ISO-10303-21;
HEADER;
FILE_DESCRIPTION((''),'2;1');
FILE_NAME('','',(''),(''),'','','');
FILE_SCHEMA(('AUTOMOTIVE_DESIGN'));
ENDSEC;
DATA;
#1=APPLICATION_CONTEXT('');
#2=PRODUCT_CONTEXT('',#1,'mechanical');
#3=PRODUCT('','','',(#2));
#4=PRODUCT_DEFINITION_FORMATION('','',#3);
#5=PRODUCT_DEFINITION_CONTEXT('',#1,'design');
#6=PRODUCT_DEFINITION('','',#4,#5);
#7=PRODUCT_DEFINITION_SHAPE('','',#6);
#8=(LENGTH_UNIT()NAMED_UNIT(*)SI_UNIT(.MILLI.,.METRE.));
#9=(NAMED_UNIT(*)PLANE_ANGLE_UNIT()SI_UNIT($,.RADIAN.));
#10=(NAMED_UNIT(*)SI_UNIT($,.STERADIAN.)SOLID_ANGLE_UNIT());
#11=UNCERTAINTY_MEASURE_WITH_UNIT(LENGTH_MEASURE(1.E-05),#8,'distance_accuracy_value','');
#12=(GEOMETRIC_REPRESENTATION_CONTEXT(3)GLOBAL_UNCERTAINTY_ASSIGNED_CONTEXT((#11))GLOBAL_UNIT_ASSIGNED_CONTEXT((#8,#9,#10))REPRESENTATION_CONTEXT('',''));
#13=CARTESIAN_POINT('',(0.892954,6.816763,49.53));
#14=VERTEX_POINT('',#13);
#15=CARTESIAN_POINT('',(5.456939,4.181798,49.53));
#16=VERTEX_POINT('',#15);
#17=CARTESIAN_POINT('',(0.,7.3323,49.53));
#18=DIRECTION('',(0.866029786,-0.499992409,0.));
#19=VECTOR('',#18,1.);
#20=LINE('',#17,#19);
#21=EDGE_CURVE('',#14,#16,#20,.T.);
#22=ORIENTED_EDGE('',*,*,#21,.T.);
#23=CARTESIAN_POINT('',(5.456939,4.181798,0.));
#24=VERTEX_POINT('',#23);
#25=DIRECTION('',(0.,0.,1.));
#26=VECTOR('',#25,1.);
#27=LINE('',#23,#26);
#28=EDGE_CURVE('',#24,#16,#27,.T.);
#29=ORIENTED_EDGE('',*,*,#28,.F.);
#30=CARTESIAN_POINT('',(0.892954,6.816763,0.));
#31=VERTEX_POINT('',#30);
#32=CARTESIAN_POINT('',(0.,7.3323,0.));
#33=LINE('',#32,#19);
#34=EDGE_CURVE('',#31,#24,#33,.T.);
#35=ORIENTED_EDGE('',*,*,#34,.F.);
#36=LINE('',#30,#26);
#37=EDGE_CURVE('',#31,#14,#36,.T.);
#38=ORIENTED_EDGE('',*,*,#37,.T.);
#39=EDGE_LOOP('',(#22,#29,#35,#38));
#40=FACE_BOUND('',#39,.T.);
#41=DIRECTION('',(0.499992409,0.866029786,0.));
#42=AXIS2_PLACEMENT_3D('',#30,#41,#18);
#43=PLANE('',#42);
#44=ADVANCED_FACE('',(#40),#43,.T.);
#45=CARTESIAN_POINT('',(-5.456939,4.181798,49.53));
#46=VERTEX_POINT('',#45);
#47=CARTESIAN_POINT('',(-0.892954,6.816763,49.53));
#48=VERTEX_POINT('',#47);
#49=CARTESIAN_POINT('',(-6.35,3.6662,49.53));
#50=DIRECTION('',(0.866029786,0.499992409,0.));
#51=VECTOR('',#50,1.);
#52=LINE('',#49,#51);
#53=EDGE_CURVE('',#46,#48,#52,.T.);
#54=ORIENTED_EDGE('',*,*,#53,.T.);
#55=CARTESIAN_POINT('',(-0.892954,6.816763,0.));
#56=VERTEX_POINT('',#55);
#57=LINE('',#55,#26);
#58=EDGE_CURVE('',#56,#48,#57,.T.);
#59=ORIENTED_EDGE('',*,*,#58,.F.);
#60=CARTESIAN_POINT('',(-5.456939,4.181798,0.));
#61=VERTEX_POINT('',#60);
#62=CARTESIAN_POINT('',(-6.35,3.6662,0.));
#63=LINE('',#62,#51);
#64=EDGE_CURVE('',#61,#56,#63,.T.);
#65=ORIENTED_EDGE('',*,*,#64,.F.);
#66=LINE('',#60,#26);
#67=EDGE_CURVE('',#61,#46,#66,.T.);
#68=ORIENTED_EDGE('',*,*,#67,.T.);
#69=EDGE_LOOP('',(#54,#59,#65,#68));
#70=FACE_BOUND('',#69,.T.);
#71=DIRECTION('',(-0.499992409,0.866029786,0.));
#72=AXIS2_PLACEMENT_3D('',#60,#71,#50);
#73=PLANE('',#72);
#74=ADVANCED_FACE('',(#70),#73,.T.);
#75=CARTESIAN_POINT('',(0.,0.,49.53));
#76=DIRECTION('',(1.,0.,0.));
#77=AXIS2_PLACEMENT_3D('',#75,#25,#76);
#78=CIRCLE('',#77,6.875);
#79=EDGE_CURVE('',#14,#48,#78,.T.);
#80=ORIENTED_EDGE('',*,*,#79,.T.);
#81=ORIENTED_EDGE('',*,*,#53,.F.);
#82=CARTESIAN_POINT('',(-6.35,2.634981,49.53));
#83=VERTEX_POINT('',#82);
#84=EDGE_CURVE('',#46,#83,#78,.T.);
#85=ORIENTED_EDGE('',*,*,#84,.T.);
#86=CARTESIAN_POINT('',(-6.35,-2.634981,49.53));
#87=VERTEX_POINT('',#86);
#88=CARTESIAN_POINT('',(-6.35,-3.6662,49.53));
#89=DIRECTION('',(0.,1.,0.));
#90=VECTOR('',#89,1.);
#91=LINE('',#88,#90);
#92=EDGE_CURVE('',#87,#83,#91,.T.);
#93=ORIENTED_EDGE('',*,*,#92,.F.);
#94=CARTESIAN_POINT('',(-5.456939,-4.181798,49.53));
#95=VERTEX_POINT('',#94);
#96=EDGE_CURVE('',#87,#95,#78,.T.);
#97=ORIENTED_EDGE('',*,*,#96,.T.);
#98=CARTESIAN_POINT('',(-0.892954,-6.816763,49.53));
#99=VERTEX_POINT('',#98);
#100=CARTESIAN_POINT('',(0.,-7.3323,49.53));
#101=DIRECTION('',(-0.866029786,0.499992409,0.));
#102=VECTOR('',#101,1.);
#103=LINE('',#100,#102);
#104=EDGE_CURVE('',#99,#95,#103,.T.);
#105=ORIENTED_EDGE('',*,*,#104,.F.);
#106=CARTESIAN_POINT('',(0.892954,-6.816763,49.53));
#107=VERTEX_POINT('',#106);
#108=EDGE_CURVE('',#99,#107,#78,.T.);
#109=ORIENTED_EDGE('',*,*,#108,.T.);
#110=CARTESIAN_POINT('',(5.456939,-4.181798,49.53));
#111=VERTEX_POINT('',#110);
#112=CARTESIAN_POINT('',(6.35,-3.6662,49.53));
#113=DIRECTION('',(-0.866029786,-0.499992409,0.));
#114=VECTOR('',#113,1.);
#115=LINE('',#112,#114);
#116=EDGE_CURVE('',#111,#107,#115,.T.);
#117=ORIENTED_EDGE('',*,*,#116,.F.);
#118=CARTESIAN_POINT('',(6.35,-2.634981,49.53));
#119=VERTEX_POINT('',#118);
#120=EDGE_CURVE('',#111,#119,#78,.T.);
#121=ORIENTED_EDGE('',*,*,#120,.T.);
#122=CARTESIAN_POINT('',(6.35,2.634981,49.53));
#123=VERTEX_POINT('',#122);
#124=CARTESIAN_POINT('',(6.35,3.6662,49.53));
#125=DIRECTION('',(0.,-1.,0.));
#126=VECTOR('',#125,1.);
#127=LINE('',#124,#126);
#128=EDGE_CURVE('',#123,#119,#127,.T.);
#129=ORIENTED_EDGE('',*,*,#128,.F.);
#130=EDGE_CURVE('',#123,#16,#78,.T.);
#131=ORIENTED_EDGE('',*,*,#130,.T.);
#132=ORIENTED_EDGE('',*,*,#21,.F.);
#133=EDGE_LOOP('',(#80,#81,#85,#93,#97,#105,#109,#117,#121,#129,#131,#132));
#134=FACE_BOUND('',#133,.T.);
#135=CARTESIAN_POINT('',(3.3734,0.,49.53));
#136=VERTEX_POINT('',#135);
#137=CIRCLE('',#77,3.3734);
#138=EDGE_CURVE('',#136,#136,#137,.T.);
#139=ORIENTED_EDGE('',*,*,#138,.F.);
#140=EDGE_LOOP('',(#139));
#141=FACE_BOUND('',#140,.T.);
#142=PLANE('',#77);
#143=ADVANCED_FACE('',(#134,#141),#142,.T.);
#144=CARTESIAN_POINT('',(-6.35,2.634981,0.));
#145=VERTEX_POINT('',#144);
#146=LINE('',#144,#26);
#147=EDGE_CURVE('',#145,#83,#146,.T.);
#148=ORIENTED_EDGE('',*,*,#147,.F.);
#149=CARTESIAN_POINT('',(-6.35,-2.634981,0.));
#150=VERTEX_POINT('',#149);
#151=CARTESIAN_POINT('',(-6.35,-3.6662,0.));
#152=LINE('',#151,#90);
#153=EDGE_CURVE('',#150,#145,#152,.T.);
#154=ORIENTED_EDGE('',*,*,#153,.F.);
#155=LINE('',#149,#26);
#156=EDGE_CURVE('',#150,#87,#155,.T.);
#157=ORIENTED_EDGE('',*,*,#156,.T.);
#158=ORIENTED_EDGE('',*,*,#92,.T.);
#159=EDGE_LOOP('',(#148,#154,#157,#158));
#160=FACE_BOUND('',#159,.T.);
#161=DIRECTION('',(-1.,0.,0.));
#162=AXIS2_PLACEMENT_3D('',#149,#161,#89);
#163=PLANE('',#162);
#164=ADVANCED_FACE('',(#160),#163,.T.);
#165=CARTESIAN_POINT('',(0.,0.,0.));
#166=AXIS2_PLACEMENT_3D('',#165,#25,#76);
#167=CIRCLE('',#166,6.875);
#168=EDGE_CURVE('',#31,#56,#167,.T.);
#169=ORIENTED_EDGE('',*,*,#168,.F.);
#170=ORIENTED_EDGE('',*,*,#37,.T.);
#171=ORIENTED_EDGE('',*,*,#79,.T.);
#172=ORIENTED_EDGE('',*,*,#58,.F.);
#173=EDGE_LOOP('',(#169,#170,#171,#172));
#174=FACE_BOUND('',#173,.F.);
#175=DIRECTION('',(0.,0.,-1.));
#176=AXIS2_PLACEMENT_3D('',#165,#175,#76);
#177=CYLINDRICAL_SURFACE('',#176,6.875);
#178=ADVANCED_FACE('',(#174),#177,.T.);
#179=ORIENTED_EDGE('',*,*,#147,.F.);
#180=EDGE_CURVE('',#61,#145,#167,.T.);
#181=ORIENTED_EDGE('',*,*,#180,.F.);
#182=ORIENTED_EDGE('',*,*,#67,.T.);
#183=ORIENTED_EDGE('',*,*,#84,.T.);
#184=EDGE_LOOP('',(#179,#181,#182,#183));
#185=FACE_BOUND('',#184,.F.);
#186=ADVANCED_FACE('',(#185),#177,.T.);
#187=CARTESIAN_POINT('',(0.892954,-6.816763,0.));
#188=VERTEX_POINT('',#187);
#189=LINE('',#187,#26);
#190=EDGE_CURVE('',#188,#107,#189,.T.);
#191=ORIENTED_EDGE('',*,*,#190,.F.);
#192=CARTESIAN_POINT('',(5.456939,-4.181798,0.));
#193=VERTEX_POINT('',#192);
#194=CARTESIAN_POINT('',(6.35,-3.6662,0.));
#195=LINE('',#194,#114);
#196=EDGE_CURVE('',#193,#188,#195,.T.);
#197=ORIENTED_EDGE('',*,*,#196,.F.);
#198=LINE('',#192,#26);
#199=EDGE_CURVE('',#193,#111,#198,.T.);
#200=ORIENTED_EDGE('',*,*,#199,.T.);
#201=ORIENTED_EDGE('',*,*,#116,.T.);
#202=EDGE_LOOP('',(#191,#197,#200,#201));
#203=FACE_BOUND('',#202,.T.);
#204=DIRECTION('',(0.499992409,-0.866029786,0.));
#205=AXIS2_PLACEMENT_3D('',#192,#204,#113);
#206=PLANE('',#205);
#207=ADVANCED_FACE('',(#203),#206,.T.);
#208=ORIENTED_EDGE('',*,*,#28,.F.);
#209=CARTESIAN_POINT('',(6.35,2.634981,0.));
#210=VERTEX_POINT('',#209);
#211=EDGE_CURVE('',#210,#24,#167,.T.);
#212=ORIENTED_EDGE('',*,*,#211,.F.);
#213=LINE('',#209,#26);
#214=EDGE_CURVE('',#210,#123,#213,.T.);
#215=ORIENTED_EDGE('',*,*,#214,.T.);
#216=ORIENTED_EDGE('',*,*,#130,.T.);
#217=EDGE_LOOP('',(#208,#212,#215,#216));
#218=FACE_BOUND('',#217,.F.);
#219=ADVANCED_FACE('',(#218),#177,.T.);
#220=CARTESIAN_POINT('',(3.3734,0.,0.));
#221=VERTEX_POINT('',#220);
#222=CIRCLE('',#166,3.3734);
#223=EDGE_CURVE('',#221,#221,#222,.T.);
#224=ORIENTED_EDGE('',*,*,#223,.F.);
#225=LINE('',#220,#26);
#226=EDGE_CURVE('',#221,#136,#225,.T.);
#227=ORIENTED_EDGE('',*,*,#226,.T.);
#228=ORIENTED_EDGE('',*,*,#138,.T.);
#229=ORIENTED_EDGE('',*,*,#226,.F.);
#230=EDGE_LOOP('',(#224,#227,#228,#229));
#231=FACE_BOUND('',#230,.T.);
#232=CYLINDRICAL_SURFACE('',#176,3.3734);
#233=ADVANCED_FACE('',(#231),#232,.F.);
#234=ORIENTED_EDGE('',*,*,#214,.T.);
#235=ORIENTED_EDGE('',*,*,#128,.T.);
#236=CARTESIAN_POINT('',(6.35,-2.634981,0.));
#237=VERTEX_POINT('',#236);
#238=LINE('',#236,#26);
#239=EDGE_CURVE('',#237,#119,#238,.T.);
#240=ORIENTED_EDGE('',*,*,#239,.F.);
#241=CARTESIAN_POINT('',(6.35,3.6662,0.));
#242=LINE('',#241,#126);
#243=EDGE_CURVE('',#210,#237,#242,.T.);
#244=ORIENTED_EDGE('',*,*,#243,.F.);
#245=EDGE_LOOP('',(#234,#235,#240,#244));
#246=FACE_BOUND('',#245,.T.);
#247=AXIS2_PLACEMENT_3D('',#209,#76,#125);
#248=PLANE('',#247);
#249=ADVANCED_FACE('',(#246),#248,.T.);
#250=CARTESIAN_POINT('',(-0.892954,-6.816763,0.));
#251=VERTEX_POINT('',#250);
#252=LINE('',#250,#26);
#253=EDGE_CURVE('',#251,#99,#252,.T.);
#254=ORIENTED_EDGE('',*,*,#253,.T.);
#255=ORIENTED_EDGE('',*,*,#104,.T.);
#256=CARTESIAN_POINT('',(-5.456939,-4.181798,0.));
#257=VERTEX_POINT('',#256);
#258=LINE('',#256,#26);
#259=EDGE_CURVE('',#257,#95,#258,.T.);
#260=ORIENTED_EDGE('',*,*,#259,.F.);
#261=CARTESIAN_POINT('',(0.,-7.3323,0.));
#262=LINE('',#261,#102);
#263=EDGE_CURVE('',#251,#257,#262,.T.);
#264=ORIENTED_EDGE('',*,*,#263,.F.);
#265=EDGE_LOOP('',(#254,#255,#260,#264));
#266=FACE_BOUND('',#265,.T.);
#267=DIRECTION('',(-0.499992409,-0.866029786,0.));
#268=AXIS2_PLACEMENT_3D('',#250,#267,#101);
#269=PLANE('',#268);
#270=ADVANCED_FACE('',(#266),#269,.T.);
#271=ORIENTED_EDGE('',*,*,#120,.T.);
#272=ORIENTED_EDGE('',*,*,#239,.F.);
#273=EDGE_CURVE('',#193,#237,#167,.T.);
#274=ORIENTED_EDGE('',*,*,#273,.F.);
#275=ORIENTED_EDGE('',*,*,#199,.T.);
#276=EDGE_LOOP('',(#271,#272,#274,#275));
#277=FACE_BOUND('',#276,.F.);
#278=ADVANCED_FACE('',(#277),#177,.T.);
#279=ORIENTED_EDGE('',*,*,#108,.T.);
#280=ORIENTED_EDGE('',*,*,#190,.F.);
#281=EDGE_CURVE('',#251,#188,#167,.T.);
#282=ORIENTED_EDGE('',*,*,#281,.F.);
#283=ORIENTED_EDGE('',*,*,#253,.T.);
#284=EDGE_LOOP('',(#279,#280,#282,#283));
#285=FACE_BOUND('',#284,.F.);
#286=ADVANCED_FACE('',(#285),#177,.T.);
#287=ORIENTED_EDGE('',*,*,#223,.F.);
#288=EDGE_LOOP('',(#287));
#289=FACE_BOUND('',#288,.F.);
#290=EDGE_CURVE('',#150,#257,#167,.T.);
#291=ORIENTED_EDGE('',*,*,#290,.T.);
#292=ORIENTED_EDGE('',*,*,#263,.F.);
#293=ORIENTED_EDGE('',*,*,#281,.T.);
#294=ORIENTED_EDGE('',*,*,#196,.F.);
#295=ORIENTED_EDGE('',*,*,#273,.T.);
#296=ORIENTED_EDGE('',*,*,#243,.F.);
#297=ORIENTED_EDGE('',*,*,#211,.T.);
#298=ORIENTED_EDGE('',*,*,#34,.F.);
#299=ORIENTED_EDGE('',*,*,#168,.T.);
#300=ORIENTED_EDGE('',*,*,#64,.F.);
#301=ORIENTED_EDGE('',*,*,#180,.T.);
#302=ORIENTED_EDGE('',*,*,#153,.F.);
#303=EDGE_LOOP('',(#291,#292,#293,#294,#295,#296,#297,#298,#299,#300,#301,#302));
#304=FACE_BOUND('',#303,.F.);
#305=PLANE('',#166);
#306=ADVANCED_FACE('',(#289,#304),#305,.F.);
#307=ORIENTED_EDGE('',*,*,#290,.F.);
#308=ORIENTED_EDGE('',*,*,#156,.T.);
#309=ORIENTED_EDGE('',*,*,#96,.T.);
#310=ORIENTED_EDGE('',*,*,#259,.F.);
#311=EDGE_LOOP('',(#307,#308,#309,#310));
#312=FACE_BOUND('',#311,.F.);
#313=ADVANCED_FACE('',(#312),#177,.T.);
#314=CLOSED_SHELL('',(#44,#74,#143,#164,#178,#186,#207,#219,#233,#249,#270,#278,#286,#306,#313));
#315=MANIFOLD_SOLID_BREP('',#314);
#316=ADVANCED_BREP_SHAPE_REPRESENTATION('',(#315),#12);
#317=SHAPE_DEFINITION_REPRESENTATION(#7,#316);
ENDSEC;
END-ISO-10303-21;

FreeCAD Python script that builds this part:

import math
import FreeCAD as App
import Part
import Sketcher

V = App.Vector
Q = App.Units.Quantity

doc = App.newDocument("Part")
params = doc.addObject("Spreadsheet::Sheet", "Params")
for row, (alias, value) in enumerate([
    ("sketch1_diameter", "0.265622 in"),
    ("pad1_length", "1.95 in"),
], start=1):
    params.set(f"A{row}", alias)
    params.set(f"B{row}", "=" + value)
    params.setAlias(f"B{row}", alias)

body = doc.addObject("PartDesign::Body", "Body")

# Sketch on XY plane
sketch1 = body.newObject("Sketcher::SketchObject", "Sketch")
sketch1.AttachmentSupport = (doc.getObject("XY_Plane"), [""])
sketch1.MapMode = "FlatFace"
sketch1.addGeometry([
    Part.LineSegment(V(5.5, 4.2, 0), V(0.9, 6.8, 0)),  # 0
    Part.ArcOfCircle(Part.Circle(V(0, 0, 0), V(0, 0, 1), 6.9), math.radians(82.54), math.radians(97.46)),  # 1
    Part.LineSegment(V(-0.9, 6.8, 0), V(-5.5, 4.2, 0)),  # 2
    Part.ArcOfCircle(Part.Circle(V(0, 0, 0), V(0, 0, 1), 6.9), math.radians(142.54), math.radians(157.46)),  # 3
    Part.LineSegment(V(-6.3, 2.6, 0), V(-6.3, -2.6, 0)),  # 4
    Part.ArcOfCircle(Part.Circle(V(0, 0, 0), V(0, 0, 1), 6.9), math.radians(-157.46), math.radians(-142.54)),  # 5
    Part.LineSegment(V(-5.5, -4.2, 0), V(-0.9, -6.8, 0)),  # 6
    Part.ArcOfCircle(Part.Circle(V(0, 0, 0), V(0, 0, 1), 6.9), math.radians(-97.46), math.radians(-82.54)),  # 7
    Part.LineSegment(V(0.9, -6.8, 0), V(5.5, -4.2, 0)),  # 8
    Part.ArcOfCircle(Part.Circle(V(0, 0, 0), V(0, 0, 1), 6.9), math.radians(-37.46), math.radians(-22.54)),  # 9
    Part.LineSegment(V(6.3, -2.6, 0), V(6.3, 2.6, 0)),  # 10
    Part.ArcOfCircle(Part.Circle(V(0, 0, 0), V(0, 0, 1), 6.9), math.radians(22.54), math.radians(37.46)),  # 11
    Part.Circle(V(0, 0, 0), V(0, 0, 1), 3.4),  # 12
], False)
sketch1.addConstraint([
    Sketcher.Constraint("Coincident", 0, 2, 1, 1),
    Sketcher.Constraint("Coincident", 1, 2, 2, 1),
    Sketcher.Constraint("Coincident", 2, 2, 3, 1),
    Sketcher.Constraint("Coincident", 3, 2, 4, 1),
    Sketcher.Constraint("Coincident", 4, 2, 5, 1),
    Sketcher.Constraint("Coincident", 5, 2, 6, 1),
    Sketcher.Constraint("Coincident", 6, 2, 7, 1),
    Sketcher.Constraint("Coincident", 7, 2, 8, 1),
    Sketcher.Constraint("Coincident", 8, 2, 9, 1),
    Sketcher.Constraint("Coincident", 9, 2, 10, 1),
    Sketcher.Constraint("Coincident", 10, 2, 11, 1),
    Sketcher.Constraint("Coincident", 11, 2, 0, 1),
    Sketcher.Constraint("Vertical", 4),
    Sketcher.Constraint("Vertical", 10),
    Sketcher.Constraint("Coincident", 1, 3, -1, 1),
    Sketcher.Constraint("Coincident", 3, 3, -1, 1),
    Sketcher.Constraint("Coincident", 5, 3, -1, 1),
    Sketcher.Constraint("Coincident", 7, 3, -1, 1),
    Sketcher.Constraint("Coincident", 9, 3, -1, 1),
    Sketcher.Constraint("Coincident", 11, 3, -1, 1),
    Sketcher.Constraint("Coincident", 12, 3, -1, 1),
    Sketcher.Constraint("Equal", 1, 3),
    Sketcher.Constraint("Equal", 3, 5),
    Sketcher.Constraint("Equal", 5, 7),
    Sketcher.Constraint("Equal", 7, 9),
    Sketcher.Constraint("Equal", 9, 11),
    Sketcher.Constraint("Parallel", 0, 6),
    Sketcher.Constraint("Parallel", 2, 8),
    Sketcher.Constraint("Horizontal", 0, 2, 1, 2),
    Sketcher.Constraint("Horizontal", 6, 2, 7, 2),
    Sketcher.Constraint("Horizontal", 5, 2, 8, 2),
    Sketcher.Constraint("Horizontal", 4, 2, 9, 2),
    Sketcher.Constraint("Vertical", 2, 2, 5, 2),
    Sketcher.Constraint("Diameter", 12, Q("0.265622 in")),
    Sketcher.Constraint("Radius", 1, Q("6.875 mm")),
    Sketcher.Constraint("Angle", 0, Q("150.0005 deg")),
    Sketcher.Constraint("DistanceX", 3, 2, -1, 1, Q("0.25 in")),
    Sketcher.Constraint("DistanceX", 2, 2, 0, 2, Q("0.25 in")),
])
sketch1.setExpression("Constraints[33]", "Params.sketch1_diameter")
pad1 = body.newObject("PartDesign::Pad", "Pad")
pad1.Profile = sketch1
pad1.setExpression("Length", "Params.pad1_length")

doc.recompute()
